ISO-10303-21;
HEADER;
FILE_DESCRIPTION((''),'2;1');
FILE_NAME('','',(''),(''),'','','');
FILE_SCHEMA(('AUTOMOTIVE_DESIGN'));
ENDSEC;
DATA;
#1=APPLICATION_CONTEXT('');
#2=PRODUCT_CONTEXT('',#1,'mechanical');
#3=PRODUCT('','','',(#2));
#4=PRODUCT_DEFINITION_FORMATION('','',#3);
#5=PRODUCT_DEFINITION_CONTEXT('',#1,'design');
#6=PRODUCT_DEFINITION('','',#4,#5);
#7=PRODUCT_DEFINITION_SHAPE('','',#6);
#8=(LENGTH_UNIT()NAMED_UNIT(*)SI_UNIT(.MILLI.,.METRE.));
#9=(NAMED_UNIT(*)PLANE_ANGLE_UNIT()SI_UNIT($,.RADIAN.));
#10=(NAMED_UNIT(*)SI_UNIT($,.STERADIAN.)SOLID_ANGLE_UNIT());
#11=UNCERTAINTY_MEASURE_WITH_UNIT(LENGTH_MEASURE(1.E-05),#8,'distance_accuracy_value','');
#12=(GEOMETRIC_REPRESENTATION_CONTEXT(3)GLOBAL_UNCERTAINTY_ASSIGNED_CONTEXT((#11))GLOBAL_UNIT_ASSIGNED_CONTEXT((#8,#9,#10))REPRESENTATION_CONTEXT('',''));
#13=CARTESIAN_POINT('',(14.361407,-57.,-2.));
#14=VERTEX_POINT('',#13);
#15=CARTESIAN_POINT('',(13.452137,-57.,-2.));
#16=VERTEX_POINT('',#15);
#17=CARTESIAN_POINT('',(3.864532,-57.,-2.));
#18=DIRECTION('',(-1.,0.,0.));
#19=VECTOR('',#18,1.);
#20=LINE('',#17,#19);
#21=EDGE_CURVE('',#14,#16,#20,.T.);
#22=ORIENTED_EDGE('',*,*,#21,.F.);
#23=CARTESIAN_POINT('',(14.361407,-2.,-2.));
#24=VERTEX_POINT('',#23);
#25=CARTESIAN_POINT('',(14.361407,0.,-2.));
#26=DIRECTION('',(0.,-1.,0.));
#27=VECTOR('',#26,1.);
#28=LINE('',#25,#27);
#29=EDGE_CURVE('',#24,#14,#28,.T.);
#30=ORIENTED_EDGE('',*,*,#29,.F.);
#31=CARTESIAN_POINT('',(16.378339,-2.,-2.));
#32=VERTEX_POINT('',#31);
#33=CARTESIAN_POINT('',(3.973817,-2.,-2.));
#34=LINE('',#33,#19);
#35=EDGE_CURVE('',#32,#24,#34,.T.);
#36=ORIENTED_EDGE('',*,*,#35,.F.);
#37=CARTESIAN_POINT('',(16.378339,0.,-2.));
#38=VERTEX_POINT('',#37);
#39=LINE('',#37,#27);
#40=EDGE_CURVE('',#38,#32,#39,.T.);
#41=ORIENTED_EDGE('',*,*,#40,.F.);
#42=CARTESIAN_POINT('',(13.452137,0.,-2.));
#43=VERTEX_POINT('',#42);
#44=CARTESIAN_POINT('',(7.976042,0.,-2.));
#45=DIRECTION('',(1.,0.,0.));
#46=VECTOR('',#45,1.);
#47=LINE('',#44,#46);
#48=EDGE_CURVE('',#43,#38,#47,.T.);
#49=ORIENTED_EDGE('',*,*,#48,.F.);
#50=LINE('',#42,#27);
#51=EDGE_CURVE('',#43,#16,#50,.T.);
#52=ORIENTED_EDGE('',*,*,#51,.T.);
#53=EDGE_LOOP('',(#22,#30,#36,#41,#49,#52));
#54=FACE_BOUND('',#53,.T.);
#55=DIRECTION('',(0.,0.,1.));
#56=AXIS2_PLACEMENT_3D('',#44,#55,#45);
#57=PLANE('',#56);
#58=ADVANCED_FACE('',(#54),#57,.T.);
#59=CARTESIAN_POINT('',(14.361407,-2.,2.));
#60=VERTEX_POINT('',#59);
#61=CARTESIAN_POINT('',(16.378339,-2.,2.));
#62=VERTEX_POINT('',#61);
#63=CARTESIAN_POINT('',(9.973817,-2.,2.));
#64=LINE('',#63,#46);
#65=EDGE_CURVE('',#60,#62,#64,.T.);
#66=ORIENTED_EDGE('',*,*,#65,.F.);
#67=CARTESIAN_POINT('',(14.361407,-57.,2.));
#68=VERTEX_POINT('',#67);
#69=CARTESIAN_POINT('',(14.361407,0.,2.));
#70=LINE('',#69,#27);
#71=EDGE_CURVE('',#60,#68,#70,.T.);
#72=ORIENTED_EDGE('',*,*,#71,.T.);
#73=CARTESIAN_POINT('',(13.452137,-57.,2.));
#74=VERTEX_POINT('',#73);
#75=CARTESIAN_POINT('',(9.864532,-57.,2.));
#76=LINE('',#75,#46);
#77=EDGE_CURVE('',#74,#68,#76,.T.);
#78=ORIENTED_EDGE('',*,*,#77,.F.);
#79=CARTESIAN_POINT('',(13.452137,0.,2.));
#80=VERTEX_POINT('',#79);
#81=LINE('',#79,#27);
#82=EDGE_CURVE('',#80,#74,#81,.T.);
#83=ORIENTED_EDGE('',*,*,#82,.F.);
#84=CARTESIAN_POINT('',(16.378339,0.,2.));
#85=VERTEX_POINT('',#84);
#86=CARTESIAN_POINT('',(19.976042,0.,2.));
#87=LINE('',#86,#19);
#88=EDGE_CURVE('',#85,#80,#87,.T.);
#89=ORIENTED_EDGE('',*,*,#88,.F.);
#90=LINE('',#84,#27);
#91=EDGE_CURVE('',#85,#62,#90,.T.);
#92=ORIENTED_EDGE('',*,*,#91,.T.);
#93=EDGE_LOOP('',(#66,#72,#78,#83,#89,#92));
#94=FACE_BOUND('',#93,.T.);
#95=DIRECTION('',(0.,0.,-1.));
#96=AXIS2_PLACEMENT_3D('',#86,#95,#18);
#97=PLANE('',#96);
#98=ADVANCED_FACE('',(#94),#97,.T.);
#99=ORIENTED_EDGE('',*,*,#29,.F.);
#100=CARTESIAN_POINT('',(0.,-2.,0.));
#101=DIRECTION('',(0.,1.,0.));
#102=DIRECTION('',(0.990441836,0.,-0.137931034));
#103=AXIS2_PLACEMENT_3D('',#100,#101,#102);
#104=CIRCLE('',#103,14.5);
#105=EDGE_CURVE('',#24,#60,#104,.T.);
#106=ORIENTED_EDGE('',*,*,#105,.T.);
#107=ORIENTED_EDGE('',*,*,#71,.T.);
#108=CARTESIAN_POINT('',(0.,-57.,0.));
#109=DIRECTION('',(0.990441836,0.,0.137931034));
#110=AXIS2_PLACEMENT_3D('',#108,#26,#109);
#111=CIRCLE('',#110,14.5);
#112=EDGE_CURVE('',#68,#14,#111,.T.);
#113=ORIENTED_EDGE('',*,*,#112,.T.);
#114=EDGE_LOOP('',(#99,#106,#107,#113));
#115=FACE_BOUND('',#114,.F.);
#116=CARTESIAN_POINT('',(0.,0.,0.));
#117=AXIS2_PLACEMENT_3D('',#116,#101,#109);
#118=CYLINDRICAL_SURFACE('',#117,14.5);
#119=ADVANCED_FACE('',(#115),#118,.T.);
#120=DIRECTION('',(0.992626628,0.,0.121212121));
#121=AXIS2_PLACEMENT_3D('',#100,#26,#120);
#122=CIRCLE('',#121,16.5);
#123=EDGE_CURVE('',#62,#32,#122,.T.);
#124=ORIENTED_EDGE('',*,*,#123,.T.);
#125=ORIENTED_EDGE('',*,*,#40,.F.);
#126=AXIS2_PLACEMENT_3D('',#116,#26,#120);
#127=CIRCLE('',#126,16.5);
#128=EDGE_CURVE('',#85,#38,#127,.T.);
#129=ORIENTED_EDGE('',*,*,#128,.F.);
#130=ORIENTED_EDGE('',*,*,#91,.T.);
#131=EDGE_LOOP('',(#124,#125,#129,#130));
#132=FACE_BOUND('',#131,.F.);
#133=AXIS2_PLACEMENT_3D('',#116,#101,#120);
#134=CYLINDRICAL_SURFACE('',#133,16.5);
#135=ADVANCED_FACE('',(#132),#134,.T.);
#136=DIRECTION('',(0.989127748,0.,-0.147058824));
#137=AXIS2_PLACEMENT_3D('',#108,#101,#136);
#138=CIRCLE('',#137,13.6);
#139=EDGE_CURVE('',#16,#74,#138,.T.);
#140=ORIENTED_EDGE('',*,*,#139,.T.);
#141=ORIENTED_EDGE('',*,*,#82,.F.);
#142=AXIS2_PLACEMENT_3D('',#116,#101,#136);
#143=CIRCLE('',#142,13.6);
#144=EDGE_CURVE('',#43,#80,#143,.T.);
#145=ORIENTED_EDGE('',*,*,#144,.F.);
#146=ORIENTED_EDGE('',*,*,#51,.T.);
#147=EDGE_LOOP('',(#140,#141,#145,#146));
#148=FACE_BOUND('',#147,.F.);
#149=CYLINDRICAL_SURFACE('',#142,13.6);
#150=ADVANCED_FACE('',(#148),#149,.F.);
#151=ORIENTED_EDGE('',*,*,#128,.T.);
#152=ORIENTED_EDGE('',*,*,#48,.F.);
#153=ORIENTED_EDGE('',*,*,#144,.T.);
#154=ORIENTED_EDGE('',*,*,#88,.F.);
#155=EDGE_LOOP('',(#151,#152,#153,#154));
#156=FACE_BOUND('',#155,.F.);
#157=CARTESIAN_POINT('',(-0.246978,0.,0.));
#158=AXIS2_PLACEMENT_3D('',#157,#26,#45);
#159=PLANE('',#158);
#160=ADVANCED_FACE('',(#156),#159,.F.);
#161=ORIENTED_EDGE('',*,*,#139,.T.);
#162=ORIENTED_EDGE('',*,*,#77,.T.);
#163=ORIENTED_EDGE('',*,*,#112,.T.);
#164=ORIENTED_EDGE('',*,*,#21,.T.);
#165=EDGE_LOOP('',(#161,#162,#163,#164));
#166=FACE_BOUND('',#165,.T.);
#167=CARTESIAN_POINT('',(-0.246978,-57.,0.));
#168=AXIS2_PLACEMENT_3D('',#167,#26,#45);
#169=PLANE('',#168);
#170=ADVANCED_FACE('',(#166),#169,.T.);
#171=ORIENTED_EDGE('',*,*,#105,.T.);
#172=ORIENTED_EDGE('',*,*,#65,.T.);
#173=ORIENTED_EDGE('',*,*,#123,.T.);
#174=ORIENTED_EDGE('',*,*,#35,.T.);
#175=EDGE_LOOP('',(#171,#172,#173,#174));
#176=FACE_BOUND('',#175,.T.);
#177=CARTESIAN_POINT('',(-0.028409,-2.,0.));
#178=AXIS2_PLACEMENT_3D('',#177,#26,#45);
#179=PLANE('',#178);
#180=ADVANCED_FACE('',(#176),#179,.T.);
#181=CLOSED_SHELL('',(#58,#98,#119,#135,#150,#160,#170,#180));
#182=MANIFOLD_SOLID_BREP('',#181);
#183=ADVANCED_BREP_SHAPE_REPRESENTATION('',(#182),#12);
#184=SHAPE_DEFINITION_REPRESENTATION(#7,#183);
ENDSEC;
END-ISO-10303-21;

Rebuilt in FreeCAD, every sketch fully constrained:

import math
import FreeCAD as App
import Part
import Sketcher
from FreeCAD import Vector
Q = App.Units.Quantity

doc = App.newDocument("Part")
body = doc.addObject("PartDesign::Body", "Body")

# Sketch on XZ plane
sketch1 = body.newObject("Sketcher::SketchObject", "Sketch")
sketch1.AttachmentSupport = (doc.getObject("XZ_Plane"), [""])
sketch1.MapMode = "FlatFace"
sketch1.addGeometry(Part.ArcOfCircle(Part.Circle(Vector(0, 0, 0), Vector(0, 0, 1), 16.5), math.radians(7), math.radians(353)), False)
sketch1.addGeometry(Part.ArcOfCircle(Part.Circle(Vector(0, 0, 0), Vector(0, 0, 1), 16.5), math.radians(-6.96), math.radians(0)), False)
sketch1.addGeometry(Part.ArcOfCircle(Part.Circle(Vector(0, 0, 0), Vector(0, 0, 1), 16.5), math.radians(0), math.radians(6.96)), False)
sketch1.addGeometry(Part.ArcOfCircle(Part.Circle(Vector(0, 0, 0), Vector(0, 0, 1), 14.5), math.radians(8), math.radians(352)), False)
sketch1.addGeometry(Part.ArcOfCircle(Part.Circle(Vector(0, 0, 0), Vector(0, 0, 1), 14.5), math.radians(0), math.radians(7.93)), False)
sketch1.addGeometry(Part.ArcOfCircle(Part.Circle(Vector(0, 0, 0), Vector(0, 0, 1), 14.5), math.radians(-7.93), math.radians(0)), False)
sketch1.addConstraint(Sketcher.Constraint("Tangent", 0, 2, 1, 1))
sketch1.addConstraint(Sketcher.Constraint("Tangent", 1, 2, 2, 1))
sketch1.addConstraint(Sketcher.Constraint("Tangent", 2, 2, 0, 1))
sketch1.addConstraint(Sketcher.Constraint("Tangent", 3, 1, 4, 2))
sketch1.addConstraint(Sketcher.Constraint("Tangent", 4, 1, 5, 2))
sketch1.addConstraint(Sketcher.Constraint("Tangent", 5, 1, 3, 2))
sketch1.addConstraint(Sketcher.Constraint("Coincident", 0, 3, -1, 1))
sketch1.addConstraint(Sketcher.Constraint("Coincident", 3, 3, -1, 1))
sketch1.addConstraint(Sketcher.Constraint("PointOnObject", 1, 2, -1))
sketch1.addConstraint(Sketcher.Constraint("PointOnObject", 4, 1, -1))
sketch1.addConstraint(Sketcher.Constraint("Horizontal", 2, 2, 3, 1))
sketch1.addConstraint(Sketcher.Constraint("Horizontal", 0, 2, 5, 1))
sketch1.addConstraint(Sketcher.Constraint("Vertical", 0, 2, 2, 2))
sketch1.addConstraint(Sketcher.Constraint("Radius", 0, Q("16.5 mm")))
sketch1.addConstraint(Sketcher.Constraint("Radius", 3, Q("14.5 mm")))
sketch1.addConstraint(Sketcher.Constraint("DistanceY", 0, 2, -1, 1, Q("2 mm")))
pad1 = body.newObject("PartDesign::Pad", "Pad")
pad1.Profile = sketch1
pad1.Length = 2

# Sketch on XZ plane
sketch2 = body.newObject("Sketcher::SketchObject", "Sketch001")
sketch2.AttachmentSupport = (doc.getObject("XZ_Plane"), [""])
sketch2.MapMode = "FlatFace"
sketch2.addGeometry(Part.ArcOfCircle(Part.Circle(Vector(0, 0, 0), Vector(0, 0, 1), 14.5), math.radians(8), math.radians(352)), False)
sketch2.addGeometry(Part.ArcOfCircle(Part.Circle(Vector(0, 0, 0), Vector(0, 0, 1), 14.5), math.radians(-7.93), math.radians(0)), False)
sketch2.addGeometry(Part.ArcOfCircle(Part.Circle(Vector(0, 0, 0), Vector(0, 0, 1), 14.5), math.radians(0), math.radians(7.93)), False)
sketch2.addGeometry(Part.ArcOfCircle(Part.Circle(Vector(0, 0, 0), Vector(0, 0, 1), 13.6), math.radians(8), math.radians(352)), False)
sketch2.addGeometry(Part.ArcOfCircle(Part.Circle(Vector(0, 0, 0), Vector(0, 0, 1), 13.6), math.radians(0), math.radians(8.46)), False)
sketch2.addGeometry(Part.ArcOfCircle(Part.Circle(Vector(0, 0, 0), Vector(0, 0, 1), 13.6), math.radians(-8.46), math.radians(0)), False)
sketch2.addConstraint(Sketcher.Constraint("Tangent", 0, 2, 1, 1))
sketch2.addConstraint(Sketcher.Constraint("Tangent", 1, 2, 2, 1))
sketch2.addConstraint(Sketcher.Constraint("Tangent", 2, 2, 0, 1))
sketch2.addConstraint(Sketcher.Constraint("Tangent", 3, 1, 4, 2))
sketch2.addConstraint(Sketcher.Constraint("Tangent", 4, 1, 5, 2))
sketch2.addConstraint(Sketcher.Constraint("Tangent", 5, 1, 3, 2))
sketch2.addConstraint(Sketcher.Constraint("Coincident", 0, 3, -1, 1))
sketch2.addConstraint(Sketcher.Constraint("Coincident", 3, 3, -1, 1))
sketch2.addConstraint(Sketcher.Constraint("PointOnObject", 1, 2, -1))
sketch2.addConstraint(Sketcher.Constraint("PointOnObject", 4, 1, -1))
sketch2.addConstraint(Sketcher.Constraint("Horizontal", 2, 2, 3, 1))
sketch2.addConstraint(Sketcher.Constraint("Horizontal", 0, 2, 5, 1))
sketch2.addConstraint(Sketcher.Constraint("Vertical", 0, 2, 2, 2))
sketch2.addConstraint(Sketcher.Constraint("Radius", 0, Q("14.5 mm")))
sketch2.addConstraint(Sketcher.Constraint("Radius", 3, Q("13.6 mm")))
sketch2.addConstraint(Sketcher.Constraint("DistanceY", 0, 2, -1, 1, Q("2 mm")))
pad2 = body.newObject("PartDesign::Pad", "Pad001")
pad2.Profile = sketch2
pad2.Length = 57

# Sketch on XZ plane
sketch3 = body.newObject("Sketcher::SketchObject", "Sketch002")
sketch3.AttachmentSupport = (doc.getObject("XZ_Plane"), [""])
sketch3.MapMode = "FlatFace"
sketch3.addGeometry(Part.LineSegment(Vector(20, 2, 0), Vector(8, 2, 0)), False)
sketch3.addGeometry(Part.LineSegment(Vector(8, 2, 0), Vector(8, -2, 0)), False)
sketch3.addGeometry(Part.LineSegment(Vector(8, -2, 0), Vector(20, -2, 0)), False)
sketch3.addGeometry(Part.LineSegment(Vector(20, -2, 0), Vector(20, 2, 0)), False)
sketch3.addConstraint(Sketcher.Constraint("Coincident", 0, 2, 1, 1))
sketch3.addConstraint(Sketcher.Constraint("Coincident", 1, 2, 2, 1))
sketch3.addConstraint(Sketcher.Constraint("Coincident", 2, 2, 3, 1))
sketch3.addConstraint(Sketcher.Constraint("Coincident", 3, 2, 0, 1))
sketch3.addConstraint(Sketcher.Constraint("Horizontal", 0))
sketch3.addConstraint(Sketcher.Constraint("Vertical", 1))
sketch3.addConstraint(Sketcher.Constraint("Horizontal", 2))
sketch3.addConstraint(Sketcher.Constraint("Vertical", 3))
sketch3.addConstraint(Sketcher.Constraint("DistanceX", 0, 2, 0, 1, Q("12 mm")))
sketch3.addConstraint(Sketcher.Constraint("DistanceY", 1, 2, 1, 1, Q("4 mm")))
sketch3.addConstraint(Sketcher.Constraint("DistanceY", -1, 1, 0, 2, Q("2 mm")))
sketch3.addConstraint(Sketcher.Constraint("DistanceX", -1, 1, 0, 2, Q("7.976042 mm")))
pocket1 = body.newObject("PartDesign::Pocket", "Pocket")
pocket1.Profile = sketch3
pocket1.Length = 127
pocket1.Reversed = True

doc.recompute()
